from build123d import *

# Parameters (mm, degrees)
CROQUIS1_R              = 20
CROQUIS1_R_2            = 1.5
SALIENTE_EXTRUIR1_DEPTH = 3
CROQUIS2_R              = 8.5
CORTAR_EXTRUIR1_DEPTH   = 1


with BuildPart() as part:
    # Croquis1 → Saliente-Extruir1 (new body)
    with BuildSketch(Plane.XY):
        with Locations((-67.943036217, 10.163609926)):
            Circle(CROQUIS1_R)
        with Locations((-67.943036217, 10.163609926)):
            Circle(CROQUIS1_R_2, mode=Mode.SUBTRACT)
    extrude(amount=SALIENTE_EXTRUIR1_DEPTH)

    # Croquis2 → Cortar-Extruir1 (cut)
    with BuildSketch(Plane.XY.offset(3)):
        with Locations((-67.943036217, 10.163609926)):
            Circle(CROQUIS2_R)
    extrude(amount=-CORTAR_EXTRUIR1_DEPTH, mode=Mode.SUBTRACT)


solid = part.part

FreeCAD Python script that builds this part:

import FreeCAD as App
import Part
import Sketcher

doc = App.newDocument("Part")
params = doc.addObject("Spreadsheet::Sheet", "Params")
for row, (alias, value) in enumerate([
    ("sketch1_diameter", "40 mm"),
    ("sketch1_diameter2", "3 mm"),
    ("pad1_length", "3 mm"),
    ("sketch2_diameter", "17 mm"),
    ("pocket1_length", "1 mm"),
], start=1):
    params.set(f"A{row}", alias)
    params.set(f"B{row}", "=" + value)
    params.setAlias(f"B{row}", alias)

body = doc.addObject("PartDesign::Body", "Body")

# Sketch on XY plane
sketch1 = doc.addObject("Sketcher::SketchObject", "Sketch")
body.addObject(sketch1)
sketch1.AttachmentSupport = (doc.XY_Plane, [""])
sketch1.MapMode = "FlatFace"
sketch1.addGeometry([
    Part.Circle(App.Vector(-67.943036, 10.16361, 0), App.Vector(0, 0, 1), 20),
    Part.Circle(App.Vector(-67.943036, 10.16361, 0), App.Vector(0, 0, 1), 1.5),
], False)
sketch1.addConstraint([
    Sketcher.Constraint("Coincident", 1, 3, 0, 3),
    Sketcher.Constraint("Diameter", 0, 40.0),
    Sketcher.Constraint("Diameter", 1, 3.0),
    Sketcher.Constraint("DistanceY", -1, 1, 0, 3, 10.16361),
    Sketcher.Constraint("DistanceX", 0, 3, -1, 1, 67.943036),
])
sketch1.setExpression("Constraints[1]", "Params.sketch1_diameter")
sketch1.setExpression("Constraints[2]", "Params.sketch1_diameter2")
pad1 = doc.addObject("PartDesign::Pad", "Pad")
body.addObject(pad1)
pad1.Profile = sketch1
pad1.setExpression("Length", "Params.pad1_length")

# Sketch on XY plane
sketch2 = doc.addObject("Sketcher::SketchObject", "Sketch001")
body.addObject(sketch2)
sketch2.AttachmentSupport = (doc.XY_Plane, [""])
sketch2.MapMode = "FlatFace"
sketch2.AttachmentOffset = App.Placement(App.Vector(0, 0, 3), App.Rotation())
sketch2.addGeometry(Part.Circle(App.Vector(-67.943036, 10.16361, 0), App.Vector(0, 0, 1), 8.5), False)
sketch2.addConstraint([
    Sketcher.Constraint("Diameter", 0, 17.0),
    Sketcher.Constraint("DistanceY", -1, 1, 0, 3, 10.16361),
    Sketcher.Constraint("DistanceX", 0, 3, -1, 1, 67.943036),
])
sketch2.setExpression("Constraints[0]", "Params.sketch2_diameter")
pocket1 = doc.addObject("PartDesign::Pocket", "Pocket")
body.addObject(pocket1)
pocket1.Profile = sketch2
pocket1.setExpression("Length", "Params.pocket1_length")

doc.recompute()
